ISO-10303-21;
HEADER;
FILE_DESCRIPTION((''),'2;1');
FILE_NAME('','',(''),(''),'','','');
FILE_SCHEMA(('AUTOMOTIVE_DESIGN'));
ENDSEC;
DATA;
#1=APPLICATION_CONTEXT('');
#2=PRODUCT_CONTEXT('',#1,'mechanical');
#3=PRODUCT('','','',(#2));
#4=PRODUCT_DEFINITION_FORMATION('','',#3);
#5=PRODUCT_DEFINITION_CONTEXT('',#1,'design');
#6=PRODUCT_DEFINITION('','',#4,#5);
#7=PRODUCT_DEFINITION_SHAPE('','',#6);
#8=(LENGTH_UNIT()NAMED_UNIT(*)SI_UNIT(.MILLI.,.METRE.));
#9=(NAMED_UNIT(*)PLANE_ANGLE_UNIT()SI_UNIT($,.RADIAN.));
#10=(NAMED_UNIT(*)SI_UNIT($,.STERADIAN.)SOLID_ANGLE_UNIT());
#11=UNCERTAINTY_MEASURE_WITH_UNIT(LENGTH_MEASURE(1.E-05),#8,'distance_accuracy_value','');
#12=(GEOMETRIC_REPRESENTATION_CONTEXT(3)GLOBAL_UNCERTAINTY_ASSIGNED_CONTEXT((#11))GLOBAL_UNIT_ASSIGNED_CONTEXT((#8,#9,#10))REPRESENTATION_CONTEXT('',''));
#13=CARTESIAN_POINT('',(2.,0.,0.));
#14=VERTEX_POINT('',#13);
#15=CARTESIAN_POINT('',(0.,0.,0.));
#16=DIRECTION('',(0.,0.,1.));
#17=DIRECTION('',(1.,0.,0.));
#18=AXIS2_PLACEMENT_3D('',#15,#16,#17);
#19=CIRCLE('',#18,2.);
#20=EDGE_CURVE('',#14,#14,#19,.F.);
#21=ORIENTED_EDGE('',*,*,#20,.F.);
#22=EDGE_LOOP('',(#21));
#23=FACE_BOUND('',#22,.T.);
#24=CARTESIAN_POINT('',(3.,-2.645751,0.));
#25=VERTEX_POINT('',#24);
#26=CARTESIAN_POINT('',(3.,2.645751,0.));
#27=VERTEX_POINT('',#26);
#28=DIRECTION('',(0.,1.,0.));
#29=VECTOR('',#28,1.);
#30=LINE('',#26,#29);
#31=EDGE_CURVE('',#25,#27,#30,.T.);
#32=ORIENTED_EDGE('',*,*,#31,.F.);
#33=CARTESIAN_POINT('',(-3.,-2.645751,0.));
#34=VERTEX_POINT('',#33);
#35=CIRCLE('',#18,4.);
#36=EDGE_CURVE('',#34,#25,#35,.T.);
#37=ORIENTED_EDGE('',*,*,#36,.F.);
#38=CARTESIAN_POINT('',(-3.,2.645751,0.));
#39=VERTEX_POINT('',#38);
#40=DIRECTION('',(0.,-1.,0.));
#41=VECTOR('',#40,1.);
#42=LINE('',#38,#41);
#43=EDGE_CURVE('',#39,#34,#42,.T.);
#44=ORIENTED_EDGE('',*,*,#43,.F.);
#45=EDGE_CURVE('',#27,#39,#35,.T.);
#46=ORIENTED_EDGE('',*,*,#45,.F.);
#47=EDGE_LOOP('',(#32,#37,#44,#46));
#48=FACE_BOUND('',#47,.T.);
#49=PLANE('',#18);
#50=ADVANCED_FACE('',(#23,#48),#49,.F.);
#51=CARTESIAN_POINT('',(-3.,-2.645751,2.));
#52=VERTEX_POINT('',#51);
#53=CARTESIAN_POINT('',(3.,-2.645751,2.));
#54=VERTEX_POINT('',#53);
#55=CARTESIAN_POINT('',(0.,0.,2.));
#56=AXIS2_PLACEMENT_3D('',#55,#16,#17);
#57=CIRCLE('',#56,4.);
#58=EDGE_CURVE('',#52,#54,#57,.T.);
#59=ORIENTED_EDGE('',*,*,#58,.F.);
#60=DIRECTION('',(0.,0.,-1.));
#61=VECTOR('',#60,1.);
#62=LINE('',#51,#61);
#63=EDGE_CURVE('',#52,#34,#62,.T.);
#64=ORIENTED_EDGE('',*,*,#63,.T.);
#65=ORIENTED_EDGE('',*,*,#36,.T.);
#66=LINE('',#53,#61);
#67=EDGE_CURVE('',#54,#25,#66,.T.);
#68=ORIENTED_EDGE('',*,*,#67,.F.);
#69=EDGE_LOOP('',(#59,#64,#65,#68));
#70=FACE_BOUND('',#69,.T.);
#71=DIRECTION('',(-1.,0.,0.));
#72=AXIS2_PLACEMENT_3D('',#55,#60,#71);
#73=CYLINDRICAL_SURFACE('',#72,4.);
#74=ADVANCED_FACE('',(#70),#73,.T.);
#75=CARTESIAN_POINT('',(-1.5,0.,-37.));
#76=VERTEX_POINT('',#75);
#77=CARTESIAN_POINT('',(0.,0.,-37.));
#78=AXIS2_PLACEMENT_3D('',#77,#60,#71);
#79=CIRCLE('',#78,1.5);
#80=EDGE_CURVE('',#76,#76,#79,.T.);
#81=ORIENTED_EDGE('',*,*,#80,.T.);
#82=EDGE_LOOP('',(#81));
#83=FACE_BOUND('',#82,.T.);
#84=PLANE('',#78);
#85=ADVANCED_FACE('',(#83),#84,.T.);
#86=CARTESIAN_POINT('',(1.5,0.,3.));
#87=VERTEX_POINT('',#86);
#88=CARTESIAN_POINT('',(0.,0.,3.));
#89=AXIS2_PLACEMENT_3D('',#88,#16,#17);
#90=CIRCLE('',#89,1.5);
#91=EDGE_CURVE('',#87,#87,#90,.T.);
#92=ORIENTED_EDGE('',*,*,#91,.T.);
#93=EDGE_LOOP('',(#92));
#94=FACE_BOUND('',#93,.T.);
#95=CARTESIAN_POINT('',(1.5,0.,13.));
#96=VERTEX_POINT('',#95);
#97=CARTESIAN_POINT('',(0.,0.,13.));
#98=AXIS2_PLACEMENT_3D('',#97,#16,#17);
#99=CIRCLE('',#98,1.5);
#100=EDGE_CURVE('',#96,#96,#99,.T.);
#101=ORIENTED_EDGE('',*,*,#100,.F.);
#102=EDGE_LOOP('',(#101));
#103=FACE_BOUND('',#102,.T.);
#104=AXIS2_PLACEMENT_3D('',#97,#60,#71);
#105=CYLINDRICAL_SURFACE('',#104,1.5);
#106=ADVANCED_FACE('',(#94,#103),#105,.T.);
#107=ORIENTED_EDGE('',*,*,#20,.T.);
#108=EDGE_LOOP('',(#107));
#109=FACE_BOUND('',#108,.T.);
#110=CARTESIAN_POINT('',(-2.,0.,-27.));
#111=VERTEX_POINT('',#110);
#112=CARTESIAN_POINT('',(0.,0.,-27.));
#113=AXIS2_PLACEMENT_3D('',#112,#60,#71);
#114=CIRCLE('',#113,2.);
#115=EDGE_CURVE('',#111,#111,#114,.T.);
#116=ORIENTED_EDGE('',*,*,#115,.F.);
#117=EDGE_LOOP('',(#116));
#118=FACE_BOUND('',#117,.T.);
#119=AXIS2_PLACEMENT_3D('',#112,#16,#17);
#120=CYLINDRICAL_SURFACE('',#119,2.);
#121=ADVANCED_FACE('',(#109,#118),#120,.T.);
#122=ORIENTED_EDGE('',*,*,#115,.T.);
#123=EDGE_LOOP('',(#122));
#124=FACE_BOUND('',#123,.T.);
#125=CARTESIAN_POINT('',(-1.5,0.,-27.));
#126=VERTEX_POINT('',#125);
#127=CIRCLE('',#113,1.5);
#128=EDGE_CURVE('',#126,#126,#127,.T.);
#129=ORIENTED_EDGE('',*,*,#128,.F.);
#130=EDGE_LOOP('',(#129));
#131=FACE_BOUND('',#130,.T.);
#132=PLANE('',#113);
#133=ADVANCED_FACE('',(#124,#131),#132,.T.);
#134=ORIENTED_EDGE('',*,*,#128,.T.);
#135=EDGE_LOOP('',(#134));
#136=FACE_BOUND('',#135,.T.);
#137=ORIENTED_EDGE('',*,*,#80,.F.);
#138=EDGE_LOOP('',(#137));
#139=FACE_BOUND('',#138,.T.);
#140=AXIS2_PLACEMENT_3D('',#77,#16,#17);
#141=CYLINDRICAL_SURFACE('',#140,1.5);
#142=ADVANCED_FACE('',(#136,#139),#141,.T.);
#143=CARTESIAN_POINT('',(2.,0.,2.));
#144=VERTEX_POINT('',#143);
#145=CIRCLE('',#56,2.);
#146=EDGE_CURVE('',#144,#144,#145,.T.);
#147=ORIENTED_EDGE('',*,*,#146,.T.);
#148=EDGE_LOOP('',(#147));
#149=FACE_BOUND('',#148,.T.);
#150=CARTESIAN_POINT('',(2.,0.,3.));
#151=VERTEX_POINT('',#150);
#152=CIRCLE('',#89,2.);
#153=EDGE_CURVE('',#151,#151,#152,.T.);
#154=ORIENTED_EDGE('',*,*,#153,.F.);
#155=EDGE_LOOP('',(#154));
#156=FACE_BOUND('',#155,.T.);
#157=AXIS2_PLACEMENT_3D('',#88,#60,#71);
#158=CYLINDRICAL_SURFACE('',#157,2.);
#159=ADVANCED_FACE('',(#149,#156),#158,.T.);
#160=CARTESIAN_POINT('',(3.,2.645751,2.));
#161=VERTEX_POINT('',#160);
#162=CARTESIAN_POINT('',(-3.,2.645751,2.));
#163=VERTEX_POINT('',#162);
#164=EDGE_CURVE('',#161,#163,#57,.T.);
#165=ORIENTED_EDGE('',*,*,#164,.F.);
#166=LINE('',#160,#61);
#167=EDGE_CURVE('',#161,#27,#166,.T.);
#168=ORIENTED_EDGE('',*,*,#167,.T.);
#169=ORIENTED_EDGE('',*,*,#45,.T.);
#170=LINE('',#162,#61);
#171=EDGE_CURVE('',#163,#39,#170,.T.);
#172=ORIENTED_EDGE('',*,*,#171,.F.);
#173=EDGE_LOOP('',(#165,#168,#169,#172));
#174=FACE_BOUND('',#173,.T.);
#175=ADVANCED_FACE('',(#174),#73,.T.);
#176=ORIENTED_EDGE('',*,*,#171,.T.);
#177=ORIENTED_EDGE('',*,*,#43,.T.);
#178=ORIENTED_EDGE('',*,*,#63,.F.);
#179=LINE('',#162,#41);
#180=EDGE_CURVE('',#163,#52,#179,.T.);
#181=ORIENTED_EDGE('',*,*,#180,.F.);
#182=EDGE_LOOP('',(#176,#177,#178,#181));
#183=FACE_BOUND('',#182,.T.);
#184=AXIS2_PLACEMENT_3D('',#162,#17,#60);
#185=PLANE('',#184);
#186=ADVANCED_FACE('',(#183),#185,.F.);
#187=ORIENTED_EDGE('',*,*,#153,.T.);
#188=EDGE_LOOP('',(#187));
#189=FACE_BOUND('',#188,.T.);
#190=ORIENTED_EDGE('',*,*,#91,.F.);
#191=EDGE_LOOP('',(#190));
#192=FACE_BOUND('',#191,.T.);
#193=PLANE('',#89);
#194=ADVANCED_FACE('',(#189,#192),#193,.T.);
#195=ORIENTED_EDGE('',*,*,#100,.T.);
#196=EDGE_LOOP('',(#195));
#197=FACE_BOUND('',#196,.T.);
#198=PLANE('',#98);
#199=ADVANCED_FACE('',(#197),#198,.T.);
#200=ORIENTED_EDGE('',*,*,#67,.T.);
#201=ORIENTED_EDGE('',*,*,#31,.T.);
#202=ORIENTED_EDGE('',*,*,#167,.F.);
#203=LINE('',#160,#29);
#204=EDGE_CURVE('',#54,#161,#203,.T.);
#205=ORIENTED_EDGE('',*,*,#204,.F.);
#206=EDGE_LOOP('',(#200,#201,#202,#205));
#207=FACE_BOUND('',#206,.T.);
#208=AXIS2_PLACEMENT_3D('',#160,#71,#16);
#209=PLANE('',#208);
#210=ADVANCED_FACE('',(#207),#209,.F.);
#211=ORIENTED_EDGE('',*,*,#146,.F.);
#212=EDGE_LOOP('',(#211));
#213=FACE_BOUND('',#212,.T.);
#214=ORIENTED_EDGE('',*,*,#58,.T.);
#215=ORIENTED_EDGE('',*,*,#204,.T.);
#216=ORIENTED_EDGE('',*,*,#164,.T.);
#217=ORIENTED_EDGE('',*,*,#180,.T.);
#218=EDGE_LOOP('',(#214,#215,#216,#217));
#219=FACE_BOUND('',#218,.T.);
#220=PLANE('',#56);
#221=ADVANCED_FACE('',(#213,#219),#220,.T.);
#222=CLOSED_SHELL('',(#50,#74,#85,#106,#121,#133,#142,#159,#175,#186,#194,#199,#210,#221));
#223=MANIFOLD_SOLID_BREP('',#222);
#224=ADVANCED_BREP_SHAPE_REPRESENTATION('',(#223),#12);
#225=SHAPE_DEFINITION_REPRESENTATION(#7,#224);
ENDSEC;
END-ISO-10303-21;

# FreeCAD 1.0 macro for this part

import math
import FreeCAD as App
import Part
import Sketcher

doc = App.newDocument("Part")
params = doc.addObject("Spreadsheet::Sheet", "Params")
for row, (alias, value) in enumerate([
    ("sketch1_radius", "4 mm"),
    ("pad1_length", "2 mm"),
    ("sketch2_diameter", "4 mm"),
    ("pad2_length", "1 mm"),
    ("sketch3_diameter", "3 mm"),
    ("pad3_length", "10 mm"),
    ("sketch4_diameter", "4 mm"),
    ("pad4_length", "27 mm"),
    ("sketch5_diameter", "3 mm"),
    ("pad5_length", "10 mm"),
], start=1):
    params.set(f"A{row}", alias)
    params.set(f"B{row}", "=" + value)
    params.setAlias(f"B{row}", alias)

body = doc.addObject("PartDesign::Body", "Body")

sketch1 = body.newObject("Sketcher::SketchObject", "Sketch")
sketch1.AttachmentSupport = (doc.getObject("XY_Plane"), [""])
sketch1.MapMode = "FlatFace"
sketch1.addGeometry([
    Part.LineSegment(App.Vector(-3, 2.6, 0), App.Vector(-3, -2.6, 0)),
    Part.ArcOfCircle(Part.Circle(App.Vector(0, 0, 0), App.Vector(0, 0, 1), 4), math.radians(-139), math.radians(-41)),
    Part.LineSegment(App.Vector(3, -2.6, 0), App.Vector(3, 2.6, 0)),
    Part.ArcOfCircle(Part.Circle(App.Vector(0, 0, 0), App.Vector(0, 0, 1), 4), math.radians(41), math.radians(139)),
], False)
sketch1.addConstraint([
    Sketcher.Constraint("Coincident", 0, 2, 1, 1),
    Sketcher.Constraint("Coincident", 1, 2, 2, 1),
    Sketcher.Constraint("Coincident", 2, 2, 3, 1),
    Sketcher.Constraint("Coincident", 3, 2, 0, 1),
    Sketcher.Constraint("Vertical", 0),
    Sketcher.Constraint("Vertical", 2),
    Sketcher.Constraint("Coincident", 1, 3, -1, 1),
    Sketcher.Constraint("Coincident", 3, 3, -1, 1),
    Sketcher.Constraint("Equal", 1, 3),
    Sketcher.Constraint("Horizontal", 0, 2, 1, 2),
    Sketcher.Constraint("Radius", 1, 4.0),
    Sketcher.Constraint("DistanceX", 0, 2, -1, 1, 3.0),
])
sketch1.setExpression("Constraints[10]", "Params.sketch1_radius")
pad1 = body.newObject("PartDesign::Pad", "Pad")
pad1.Profile = sketch1
pad1.setExpression("Length", "Params.pad1_length")

sketch2 = body.newObject("Sketcher::SketchObject", "Sketch001")
sketch2.AttachmentSupport = (doc.getObject("XY_Plane"), [""])
sketch2.MapMode = "FlatFace"
sketch2.AttachmentOffset = App.Placement(App.Vector(0, 0, 2), App.Rotation())
sketch2.addGeometry(Part.Circle(App.Vector(0, 0, 0), App.Vector(0, 0, 1), 2), False)
sketch2.addConstraint([
    Sketcher.Constraint("Coincident", 0, 3, -1, 1),
    Sketcher.Constraint("Diameter", 0, 4.0),
])
sketch2.setExpression("Constraints[1]", "Params.sketch2_diameter")
pad2 = body.newObject("PartDesign::Pad", "Pad001")
pad2.Profile = sketch2
pad2.setExpression("Length", "Params.pad2_length")

sketch3 = body.newObject("Sketcher::SketchObject", "Sketch002")
sketch3.AttachmentSupport = (doc.getObject("XY_Plane"), [""])
sketch3.MapMode = "FlatFace"
sketch3.AttachmentOffset = App.Placement(App.Vector(0, 0, 3), App.Rotation())
sketch3.addGeometry(Part.Circle(App.Vector(0, 0, 0), App.Vector(0, 0, 1), 1.5), False)
sketch3.addConstraint([
    Sketcher.Constraint("Coincident", 0, 3, -1, 1),
    Sketcher.Constraint("Diameter", 0, 3.0),
])
sketch3.setExpression("Constraints[1]", "Params.sketch3_diameter")
pad3 = body.newObject("PartDesign::Pad", "Pad002")
pad3.Profile = sketch3
pad3.setExpression("Length", "Params.pad3_length")

sketch4 = body.newObject("Sketcher::SketchObject", "Sketch003")
sketch4.AttachmentSupport = (doc.getObject("XY_Plane"), [""])
sketch4.MapMode = "FlatFace"
sketch4.AttachmentOffset = App.Placement(App.Vector(0, 0, -27), App.Rotation())
sketch4.addGeometry(Part.Circle(App.Vector(0, 0, 0), App.Vector(0, 0, 1), 2), False)
sketch4.addConstraint([
    Sketcher.Constraint("Coincident", 0, 3, -1, 1),
    Sketcher.Constraint("Diameter", 0, 4.0),
])
sketch4.setExpression("Constraints[1]", "Params.sketch4_diameter")
pad4 = body.newObject("PartDesign::Pad", "Pad003")
pad4.Profile = sketch4
pad4.setExpression("Length", "Params.pad4_length")

sketch5 = body.newObject("Sketcher::SketchObject", "Sketch004")
sketch5.AttachmentSupport = (doc.getObject("XY_Plane"), [""])
sketch5.MapMode = "FlatFace"
sketch5.AttachmentOffset = App.Placement(App.Vector(0, 0, -37), App.Rotation())
sketch5.addGeometry(Part.Circle(App.Vector(0, 0, 0), App.Vector(0, 0, 1), 1.5), False)
sketch5.addConstraint([
    Sketcher.Constraint("Coincident", 0, 3, -1, 1),
    Sketcher.Constraint("Diameter", 0, 3.0),
])
sketch5.setExpression("Constraints[1]", "Params.sketch5_diameter")
pad5 = body.newObject("PartDesign::Pad", "Pad004")
pad5.Profile = sketch5
pad5.setExpression("Length", "Params.pad5_length")

doc.recompute()
